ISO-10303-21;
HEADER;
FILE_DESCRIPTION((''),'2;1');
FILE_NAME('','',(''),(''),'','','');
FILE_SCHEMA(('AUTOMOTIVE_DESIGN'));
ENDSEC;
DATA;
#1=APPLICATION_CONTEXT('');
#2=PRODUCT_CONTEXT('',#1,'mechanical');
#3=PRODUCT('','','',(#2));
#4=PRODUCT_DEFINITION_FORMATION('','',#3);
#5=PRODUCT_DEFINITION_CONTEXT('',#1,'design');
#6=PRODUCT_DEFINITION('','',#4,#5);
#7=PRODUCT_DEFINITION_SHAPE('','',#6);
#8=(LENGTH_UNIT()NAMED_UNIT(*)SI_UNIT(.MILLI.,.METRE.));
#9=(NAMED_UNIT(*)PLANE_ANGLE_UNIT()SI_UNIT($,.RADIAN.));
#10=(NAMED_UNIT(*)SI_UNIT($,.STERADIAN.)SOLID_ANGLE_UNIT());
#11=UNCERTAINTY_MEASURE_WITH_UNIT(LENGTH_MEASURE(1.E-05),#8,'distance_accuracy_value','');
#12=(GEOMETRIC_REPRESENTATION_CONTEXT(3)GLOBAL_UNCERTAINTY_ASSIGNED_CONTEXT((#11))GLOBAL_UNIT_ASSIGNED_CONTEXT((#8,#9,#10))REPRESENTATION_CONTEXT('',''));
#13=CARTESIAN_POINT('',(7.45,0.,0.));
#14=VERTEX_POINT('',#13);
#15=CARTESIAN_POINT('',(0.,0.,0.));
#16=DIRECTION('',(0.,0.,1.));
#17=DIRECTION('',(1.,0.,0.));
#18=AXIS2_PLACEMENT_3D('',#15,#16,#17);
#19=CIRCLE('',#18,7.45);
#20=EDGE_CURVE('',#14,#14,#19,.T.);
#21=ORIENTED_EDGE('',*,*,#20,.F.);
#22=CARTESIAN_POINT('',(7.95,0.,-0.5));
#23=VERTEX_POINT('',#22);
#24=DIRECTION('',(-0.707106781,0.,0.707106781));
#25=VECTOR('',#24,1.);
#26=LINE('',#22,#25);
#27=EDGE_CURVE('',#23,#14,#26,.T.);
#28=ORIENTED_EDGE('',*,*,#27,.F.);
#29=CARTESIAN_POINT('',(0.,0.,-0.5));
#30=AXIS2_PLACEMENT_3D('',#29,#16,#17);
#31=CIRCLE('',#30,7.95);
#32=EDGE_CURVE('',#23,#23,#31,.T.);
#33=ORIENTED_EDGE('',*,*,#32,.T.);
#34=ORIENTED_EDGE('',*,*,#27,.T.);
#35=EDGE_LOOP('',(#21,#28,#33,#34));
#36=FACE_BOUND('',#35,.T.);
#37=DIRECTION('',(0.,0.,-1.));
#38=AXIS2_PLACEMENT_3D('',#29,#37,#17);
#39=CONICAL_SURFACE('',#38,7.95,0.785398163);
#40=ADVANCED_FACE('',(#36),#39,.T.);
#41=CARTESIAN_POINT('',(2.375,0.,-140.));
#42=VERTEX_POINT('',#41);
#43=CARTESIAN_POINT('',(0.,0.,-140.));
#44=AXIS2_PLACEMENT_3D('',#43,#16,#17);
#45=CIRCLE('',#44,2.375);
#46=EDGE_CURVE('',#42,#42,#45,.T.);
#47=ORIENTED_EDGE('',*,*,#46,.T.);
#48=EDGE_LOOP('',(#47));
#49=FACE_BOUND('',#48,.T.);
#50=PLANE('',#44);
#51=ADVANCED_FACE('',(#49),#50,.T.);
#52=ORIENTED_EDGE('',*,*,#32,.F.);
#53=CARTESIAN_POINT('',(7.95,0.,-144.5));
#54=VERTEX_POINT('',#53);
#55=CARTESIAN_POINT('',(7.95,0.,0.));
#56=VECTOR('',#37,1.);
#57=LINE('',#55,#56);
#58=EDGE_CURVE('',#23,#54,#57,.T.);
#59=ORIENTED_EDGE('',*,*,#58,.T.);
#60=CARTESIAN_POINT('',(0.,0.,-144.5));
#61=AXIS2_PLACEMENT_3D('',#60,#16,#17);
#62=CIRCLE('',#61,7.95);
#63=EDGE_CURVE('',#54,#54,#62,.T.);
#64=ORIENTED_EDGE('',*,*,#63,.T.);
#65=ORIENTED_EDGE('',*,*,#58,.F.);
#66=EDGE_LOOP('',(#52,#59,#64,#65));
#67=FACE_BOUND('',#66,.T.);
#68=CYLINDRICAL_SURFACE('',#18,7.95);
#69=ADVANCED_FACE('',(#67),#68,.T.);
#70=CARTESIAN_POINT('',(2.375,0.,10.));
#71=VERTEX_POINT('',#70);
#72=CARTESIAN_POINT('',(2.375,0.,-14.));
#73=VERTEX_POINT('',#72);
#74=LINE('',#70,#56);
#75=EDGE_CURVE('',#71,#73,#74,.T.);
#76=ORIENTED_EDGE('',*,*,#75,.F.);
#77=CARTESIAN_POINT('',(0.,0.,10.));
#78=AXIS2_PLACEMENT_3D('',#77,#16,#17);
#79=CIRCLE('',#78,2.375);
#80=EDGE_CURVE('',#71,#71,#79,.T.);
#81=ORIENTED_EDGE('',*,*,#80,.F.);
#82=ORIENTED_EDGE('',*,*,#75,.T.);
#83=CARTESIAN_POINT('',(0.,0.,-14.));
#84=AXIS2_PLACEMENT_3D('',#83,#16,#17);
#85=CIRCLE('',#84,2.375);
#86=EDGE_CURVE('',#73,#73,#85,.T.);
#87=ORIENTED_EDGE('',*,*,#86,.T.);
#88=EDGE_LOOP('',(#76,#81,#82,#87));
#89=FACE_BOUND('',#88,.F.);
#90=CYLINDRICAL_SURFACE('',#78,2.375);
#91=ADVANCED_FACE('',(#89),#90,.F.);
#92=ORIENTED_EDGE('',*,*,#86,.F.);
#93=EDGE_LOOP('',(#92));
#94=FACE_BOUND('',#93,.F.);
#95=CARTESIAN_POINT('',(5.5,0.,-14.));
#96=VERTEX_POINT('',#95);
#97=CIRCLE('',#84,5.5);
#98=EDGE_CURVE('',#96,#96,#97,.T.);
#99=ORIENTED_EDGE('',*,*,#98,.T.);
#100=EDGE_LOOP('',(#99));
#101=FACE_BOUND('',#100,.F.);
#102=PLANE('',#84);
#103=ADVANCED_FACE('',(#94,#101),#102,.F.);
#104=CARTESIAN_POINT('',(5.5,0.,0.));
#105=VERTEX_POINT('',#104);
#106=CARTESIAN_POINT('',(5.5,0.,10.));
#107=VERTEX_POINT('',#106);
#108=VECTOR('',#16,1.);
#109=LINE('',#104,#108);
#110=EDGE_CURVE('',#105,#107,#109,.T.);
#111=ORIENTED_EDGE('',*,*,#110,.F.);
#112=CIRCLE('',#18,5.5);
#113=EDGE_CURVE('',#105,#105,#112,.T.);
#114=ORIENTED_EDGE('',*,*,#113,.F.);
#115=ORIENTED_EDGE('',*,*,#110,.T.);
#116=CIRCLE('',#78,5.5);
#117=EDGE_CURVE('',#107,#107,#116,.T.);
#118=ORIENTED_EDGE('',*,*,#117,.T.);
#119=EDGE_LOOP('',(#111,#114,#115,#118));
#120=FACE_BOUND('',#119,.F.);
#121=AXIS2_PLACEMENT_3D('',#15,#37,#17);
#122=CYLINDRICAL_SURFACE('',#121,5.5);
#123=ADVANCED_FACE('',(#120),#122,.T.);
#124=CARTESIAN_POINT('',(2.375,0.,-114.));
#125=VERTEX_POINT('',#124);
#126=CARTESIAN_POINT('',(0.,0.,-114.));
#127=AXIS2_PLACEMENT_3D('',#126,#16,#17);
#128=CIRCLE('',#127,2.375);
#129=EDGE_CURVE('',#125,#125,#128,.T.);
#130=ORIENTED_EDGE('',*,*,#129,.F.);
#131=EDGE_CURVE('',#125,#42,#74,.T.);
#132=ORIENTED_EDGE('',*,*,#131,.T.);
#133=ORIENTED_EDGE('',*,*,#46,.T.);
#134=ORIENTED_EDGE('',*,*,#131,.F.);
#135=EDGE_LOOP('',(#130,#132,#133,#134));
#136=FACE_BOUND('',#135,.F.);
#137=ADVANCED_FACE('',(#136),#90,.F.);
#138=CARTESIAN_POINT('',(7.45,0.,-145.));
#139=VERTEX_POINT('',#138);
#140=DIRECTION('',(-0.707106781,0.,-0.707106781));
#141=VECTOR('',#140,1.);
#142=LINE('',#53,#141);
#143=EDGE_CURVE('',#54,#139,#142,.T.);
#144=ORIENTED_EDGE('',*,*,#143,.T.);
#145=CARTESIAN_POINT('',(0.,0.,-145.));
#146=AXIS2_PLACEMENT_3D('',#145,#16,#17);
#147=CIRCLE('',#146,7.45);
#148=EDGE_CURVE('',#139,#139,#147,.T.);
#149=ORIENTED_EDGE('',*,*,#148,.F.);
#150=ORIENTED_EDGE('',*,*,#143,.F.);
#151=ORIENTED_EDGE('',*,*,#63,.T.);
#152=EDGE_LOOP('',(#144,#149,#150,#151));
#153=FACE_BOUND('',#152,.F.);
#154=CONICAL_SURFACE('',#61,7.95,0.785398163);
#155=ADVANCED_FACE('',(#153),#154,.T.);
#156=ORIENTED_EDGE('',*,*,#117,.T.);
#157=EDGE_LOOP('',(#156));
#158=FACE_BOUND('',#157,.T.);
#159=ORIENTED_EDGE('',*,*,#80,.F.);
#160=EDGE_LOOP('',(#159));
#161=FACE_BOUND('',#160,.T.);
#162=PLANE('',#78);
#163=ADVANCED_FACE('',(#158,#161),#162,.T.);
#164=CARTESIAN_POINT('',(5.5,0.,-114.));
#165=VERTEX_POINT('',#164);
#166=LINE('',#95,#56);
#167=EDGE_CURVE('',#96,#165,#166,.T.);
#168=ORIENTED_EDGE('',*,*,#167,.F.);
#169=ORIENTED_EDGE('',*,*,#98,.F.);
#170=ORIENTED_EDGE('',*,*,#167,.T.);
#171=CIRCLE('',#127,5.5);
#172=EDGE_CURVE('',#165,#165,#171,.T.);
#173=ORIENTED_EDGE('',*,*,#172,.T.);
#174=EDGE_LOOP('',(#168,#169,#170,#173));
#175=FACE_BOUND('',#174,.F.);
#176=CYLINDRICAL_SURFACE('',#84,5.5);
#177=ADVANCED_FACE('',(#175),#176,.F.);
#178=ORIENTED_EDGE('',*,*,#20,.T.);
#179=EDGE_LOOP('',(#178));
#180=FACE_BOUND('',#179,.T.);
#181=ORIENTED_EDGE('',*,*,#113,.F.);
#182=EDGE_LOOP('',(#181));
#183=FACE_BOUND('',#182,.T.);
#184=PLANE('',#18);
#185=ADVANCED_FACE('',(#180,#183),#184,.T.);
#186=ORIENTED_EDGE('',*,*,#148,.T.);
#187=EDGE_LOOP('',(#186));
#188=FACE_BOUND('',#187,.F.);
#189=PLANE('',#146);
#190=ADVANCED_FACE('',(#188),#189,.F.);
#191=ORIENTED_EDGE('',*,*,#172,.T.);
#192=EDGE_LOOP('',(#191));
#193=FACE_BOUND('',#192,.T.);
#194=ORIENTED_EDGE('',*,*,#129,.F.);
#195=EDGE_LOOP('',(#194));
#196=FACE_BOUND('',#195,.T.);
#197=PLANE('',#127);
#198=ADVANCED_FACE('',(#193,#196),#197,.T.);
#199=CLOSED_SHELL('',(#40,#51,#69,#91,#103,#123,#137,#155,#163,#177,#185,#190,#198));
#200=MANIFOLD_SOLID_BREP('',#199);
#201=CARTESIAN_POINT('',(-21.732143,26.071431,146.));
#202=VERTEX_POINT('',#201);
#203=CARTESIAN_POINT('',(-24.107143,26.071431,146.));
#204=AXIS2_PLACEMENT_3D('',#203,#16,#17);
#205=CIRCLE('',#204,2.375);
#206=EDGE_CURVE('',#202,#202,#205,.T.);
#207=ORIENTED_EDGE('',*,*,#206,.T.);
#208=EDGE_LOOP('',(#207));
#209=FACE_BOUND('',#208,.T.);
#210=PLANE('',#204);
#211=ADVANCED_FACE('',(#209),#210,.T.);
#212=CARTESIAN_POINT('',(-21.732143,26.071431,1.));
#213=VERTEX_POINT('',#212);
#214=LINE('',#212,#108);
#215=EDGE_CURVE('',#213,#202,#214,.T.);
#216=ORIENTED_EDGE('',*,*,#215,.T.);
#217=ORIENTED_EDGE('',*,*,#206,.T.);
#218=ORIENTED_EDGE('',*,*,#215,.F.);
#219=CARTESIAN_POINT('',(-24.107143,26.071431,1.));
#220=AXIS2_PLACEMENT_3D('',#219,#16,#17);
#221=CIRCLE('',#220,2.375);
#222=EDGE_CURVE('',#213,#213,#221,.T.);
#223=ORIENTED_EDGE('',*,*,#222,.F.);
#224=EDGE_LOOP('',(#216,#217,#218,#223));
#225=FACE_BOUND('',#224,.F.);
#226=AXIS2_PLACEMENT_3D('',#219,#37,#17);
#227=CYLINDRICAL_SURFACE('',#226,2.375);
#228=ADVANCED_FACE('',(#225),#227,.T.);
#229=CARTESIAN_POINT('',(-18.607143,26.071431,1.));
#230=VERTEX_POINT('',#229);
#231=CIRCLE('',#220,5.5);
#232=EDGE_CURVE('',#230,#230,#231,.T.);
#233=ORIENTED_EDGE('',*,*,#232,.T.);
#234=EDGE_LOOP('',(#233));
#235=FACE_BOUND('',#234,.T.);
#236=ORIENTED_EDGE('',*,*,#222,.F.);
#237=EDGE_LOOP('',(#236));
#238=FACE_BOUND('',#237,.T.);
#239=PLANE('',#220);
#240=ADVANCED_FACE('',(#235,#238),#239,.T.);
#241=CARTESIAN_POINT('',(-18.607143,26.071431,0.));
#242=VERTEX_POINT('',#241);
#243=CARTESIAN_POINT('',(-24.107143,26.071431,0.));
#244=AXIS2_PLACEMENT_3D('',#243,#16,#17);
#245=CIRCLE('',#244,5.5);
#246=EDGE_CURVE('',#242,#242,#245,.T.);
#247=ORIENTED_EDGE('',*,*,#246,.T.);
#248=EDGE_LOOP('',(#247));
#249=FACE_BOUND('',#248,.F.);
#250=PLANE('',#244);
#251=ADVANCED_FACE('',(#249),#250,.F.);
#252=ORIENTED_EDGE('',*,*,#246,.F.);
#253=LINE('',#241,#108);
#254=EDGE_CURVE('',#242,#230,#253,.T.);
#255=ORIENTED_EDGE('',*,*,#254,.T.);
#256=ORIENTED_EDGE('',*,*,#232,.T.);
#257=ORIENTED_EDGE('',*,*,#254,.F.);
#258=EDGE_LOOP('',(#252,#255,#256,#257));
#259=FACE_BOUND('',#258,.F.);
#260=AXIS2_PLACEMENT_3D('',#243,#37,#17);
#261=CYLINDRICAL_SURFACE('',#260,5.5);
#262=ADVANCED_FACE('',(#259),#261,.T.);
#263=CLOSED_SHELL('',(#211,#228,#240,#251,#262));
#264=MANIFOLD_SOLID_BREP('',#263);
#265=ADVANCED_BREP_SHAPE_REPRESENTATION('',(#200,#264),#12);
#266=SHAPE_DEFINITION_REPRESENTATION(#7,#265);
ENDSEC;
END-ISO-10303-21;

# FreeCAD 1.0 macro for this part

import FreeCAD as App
import Part
import Sketcher
from FreeCAD import Vector
Q = App.Units.Quantity


def edges_at(feature, points):
    """Names of the edges that pass closest to the given points."""
    edges = feature.Shape.Edges
    near = lambda p: min(range(len(edges)), key=lambda i: edges[i].distToShape(Part.Vertex(*p))[0])
    return sorted({f"Edge{near(p) + 1}" for p in points})

doc = App.newDocument("Part")
params = doc.addObject("Spreadsheet::Sheet", "Params")
for row, (alias, value) in enumerate([
    ("sketch1_diameter", "15.9 mm"),
    ("pad1_length", "145 mm"),
    ("sketch2_diameter", "11 mm"),
    ("pad2_length", "10 mm"),
    ("chamfer_size", "0.5 mm"),
    ("sketch3_diameter", "4.75 mm"),
    ("pocket1_length", "150 mm"),
    ("sketch4_diameter", "11 mm"),
    ("sketch4_diameter2", "4.75 mm"),
    ("pocket2_length", "100 mm"),
    ("sketch5_diameter", "11 mm"),
    ("pad3_length", "1 mm"),
    ("sketch6_diameter", "4.75 mm"),
    ("pad4_length", "145 mm"),
], start=1):
    params.set(f"A{row}", alias)
    params.set(f"B{row}", "=" + value)
    params.setAlias(f"B{row}", alias)

body = doc.addObject("PartDesign::Body", "Body")

sketch1 = body.newObject("Sketcher::SketchObject", "Sketch")
sketch1.AttachmentSupport = (doc.getObject("XY_Plane"), [""])
sketch1.MapMode = "FlatFace"
sketch1.addGeometry(Part.Circle(Vector(0, 0, 0), Vector(0, 0, 1), 8), False)
sketch1.addConstraint([
    Sketcher.Constraint("Coincident", 0, 3, -1, 1),
    Sketcher.Constraint("Diameter", 0, Q("15.9 mm")),
])
sketch1.setExpression("Constraints[1]", "Params.sketch1_diameter")
pad1 = body.newObject("PartDesign::Pad", "Pad")
pad1.Profile = sketch1
pad1.setExpression("Length", "Params.pad1_length")
pad1.Reversed = True

sketch2 = body.newObject("Sketcher::SketchObject", "Sketch001")
sketch2.AttachmentSupport = (doc.getObject("XY_Plane"), [""])
sketch2.MapMode = "FlatFace"
sketch2.addGeometry(Part.Circle(Vector(0, 0, 0), Vector(0, 0, 1), 6), False)
sketch2.addConstraint([
    Sketcher.Constraint("Coincident", 0, 3, -1, 1),
    Sketcher.Constraint("Diameter", 0, Q("11 mm")),
])
sketch2.setExpression("Constraints[1]", "Params.sketch2_diameter")
pad2 = body.newObject("PartDesign::Pad", "Pad001")
pad2.Profile = sketch2
pad2.setExpression("Length", "Params.pad2_length")
doc.recompute()

chamfer = body.newObject("PartDesign::Chamfer", "Chamfer")
chamfer.Base = (pad2, edges_at(pad2, [(-7.95, 0, 0), (-7.95, 0, -145)]))
chamfer.setExpression("Size", "Params.chamfer_size")

sketch3 = body.newObject("Sketcher::SketchObject", "Sketch002")
sketch3.AttachmentSupport = (doc.getObject("XY_Plane"), [""])
sketch3.MapMode = "FlatFace"
sketch3.AttachmentOffset = App.Placement(Vector(0, 0, 10), App.Rotation())
sketch3.addGeometry(Part.Circle(Vector(0, 0, 0), Vector(0, 0, 1), 2.4), False)
sketch3.addConstraint([
    Sketcher.Constraint("Coincident", 0, 3, -1, 1),
    Sketcher.Constraint("Diameter", 0, Q("4.75 mm")),
])
sketch3.setExpression("Constraints[1]", "Params.sketch3_diameter")
pocket1 = body.newObject("PartDesign::Pocket", "Pocket")
pocket1.Profile = sketch3
pocket1.setExpression("Length", "Params.pocket1_length")

sketch4 = body.newObject("Sketcher::SketchObject", "Sketch003")
sketch4.AttachmentSupport = (doc.getObject("XY_Plane"), [""])
sketch4.MapMode = "FlatFace"
sketch4.AttachmentOffset = App.Placement(Vector(0, 0, -14), App.Rotation())
sketch4.addGeometry([
    Part.Circle(Vector(0, 0, 0), Vector(0, 0, 1), 5.5),
    Part.Circle(Vector(0, 0, 0), Vector(0, 0, 1), 2.4),
], False)
sketch4.addConstraint([
    Sketcher.Constraint("Coincident", 0, 3, -1, 1),
    Sketcher.Constraint("Coincident", 1, 3, -1, 1),
    Sketcher.Constraint("Diameter", 0, Q("11 mm")),
    Sketcher.Constraint("Diameter", 1, Q("4.75 mm")),
])
sketch4.setExpression("Constraints[2]", "Params.sketch4_diameter")
sketch4.setExpression("Constraints[3]", "Params.sketch4_diameter2")
pocket2 = body.newObject("PartDesign::Pocket", "Pocket001")
pocket2.Profile = sketch4
pocket2.setExpression("Length", "Params.pocket2_length")
body2 = doc.addObject("PartDesign::Body", "Body001")

sketch5 = body2.newObject("Sketcher::SketchObject", "Sketch004")
sketch5.AttachmentSupport = (doc.getObject("XY_Plane001"), [""])
sketch5.MapMode = "FlatFace"
sketch5.addGeometry(Part.Circle(Vector(-24, 26, 0), Vector(0, 0, 1), 6), False)
sketch5.addConstraint([
    Sketcher.Constraint("Diameter", 0, Q("11 mm")),
    Sketcher.Constraint("DistanceY", -1, 1, 0, 3, Q("26.071431 mm")),
    Sketcher.Constraint("DistanceX", 0, 3, -1, 1, Q("24.107143 mm")),
])
sketch5.setExpression("Constraints[0]", "Params.sketch5_diameter")
pad3 = body2.newObject("PartDesign::Pad", "Pad002")
pad3.Profile = sketch5
pad3.setExpression("Length", "Params.pad3_length")

sketch6 = body2.newObject("Sketcher::SketchObject", "Sketch005")
sketch6.AttachmentSupport = (doc.getObject("XY_Plane001"), [""])
sketch6.MapMode = "FlatFace"
sketch6.AttachmentOffset = App.Placement(Vector(0, 0, 1), App.Rotation())
sketch6.addGeometry(Part.Circle(Vector(-24.1, 26.1, 0), Vector(0, 0, 1), 2.4), False)
sketch6.addConstraint([
    Sketcher.Constraint("Diameter", 0, Q("4.75 mm")),
    Sketcher.Constraint("DistanceY", -1, 1, 0, 3, Q("26.071431 mm")),
    Sketcher.Constraint("DistanceX", 0, 3, -1, 1, Q("24.107143 mm")),
])
sketch6.setExpression("Constraints[0]", "Params.sketch6_diameter")
pad4 = body2.newObject("PartDesign::Pad", "Pad003")
pad4.Profile = sketch6
pad4.setExpression("Length", "Params.pad4_length")

doc.recompute()
